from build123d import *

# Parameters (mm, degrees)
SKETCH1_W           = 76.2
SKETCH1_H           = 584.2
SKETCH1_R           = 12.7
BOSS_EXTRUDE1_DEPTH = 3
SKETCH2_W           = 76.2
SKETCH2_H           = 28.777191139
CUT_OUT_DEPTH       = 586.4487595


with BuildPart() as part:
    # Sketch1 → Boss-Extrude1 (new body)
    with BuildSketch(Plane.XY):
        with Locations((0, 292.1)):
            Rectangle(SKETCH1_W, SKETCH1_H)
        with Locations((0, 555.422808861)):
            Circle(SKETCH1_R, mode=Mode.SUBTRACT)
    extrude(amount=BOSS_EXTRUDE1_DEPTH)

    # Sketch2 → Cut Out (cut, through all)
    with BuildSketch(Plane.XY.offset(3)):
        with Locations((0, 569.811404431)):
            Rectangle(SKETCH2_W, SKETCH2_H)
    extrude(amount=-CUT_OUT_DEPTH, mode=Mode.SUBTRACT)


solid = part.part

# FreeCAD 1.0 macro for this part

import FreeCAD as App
import Part
import Sketcher
from FreeCAD import Vector
Q = App.Units.Quantity

doc = App.newDocument("Part")
body = doc.addObject("PartDesign::Body", "Body")

# Sketch on XY plane
sketch1 = doc.addObject("Sketcher::SketchObject", "Sketch")
body.addObject(sketch1)
sketch1.AttachmentSupport = (doc.XY_Plane, [""])
sketch1.MapMode = "FlatFace"
sketch1.addGeometry(Part.LineSegment(Vector(-38, 584, 0), Vector(-38, 0, 0)), False)
sketch1.addGeometry(Part.LineSegment(Vector(-38, 0, 0), Vector(38, 0, 0)), False)
sketch1.addGeometry(Part.LineSegment(Vector(38, 0, 0), Vector(38, 584, 0)), False)
sketch1.addGeometry(Part.LineSegment(Vector(38, 584, 0), Vector(-38, 584, 0)), False)
sketch1.addGeometry(Part.Circle(Vector(0, 555, 0), Vector(0, 0, 1), 13), False)
sketch1.addConstraint(Sketcher.Constraint("Coincident", 0, 2, 1, 1))
sketch1.addConstraint(Sketcher.Constraint("Coincident", 1, 2, 2, 1))
sketch1.addConstraint(Sketcher.Constraint("Coincident", 2, 2, 3, 1))
sketch1.addConstraint(Sketcher.Constraint("Coincident", 3, 2, 0, 1))
sketch1.addConstraint(Sketcher.Constraint("Vertical", 0))
sketch1.addConstraint(Sketcher.Constraint("Horizontal", 1))
sketch1.addConstraint(Sketcher.Constraint("Vertical", 2))
sketch1.addConstraint(Sketcher.Constraint("Horizontal", 3))
sketch1.addConstraint(Sketcher.Constraint("Symmetric", 0, 2, 1, 2, -1, 1))
sketch1.addConstraint(Sketcher.Constraint("PointOnObject", 4, 3, -2))
sketch1.addConstraint(Sketcher.Constraint("Diameter", 4, Q("1 in")))
sketch1.addConstraint(Sketcher.Constraint("DistanceX", 1, 1, 1, 2, Q("3 in")))
sketch1.addConstraint(Sketcher.Constraint("DistanceY", 0, 2, 0, 1, Q("23 in")))
sketch1.addConstraint(Sketcher.Constraint("DistanceY", -1, 1, 4, 3, Q("555.422809 mm")))
pad1 = doc.addObject("PartDesign::Pad", "Pad")
body.addObject(pad1)
pad1.Profile = sketch1
pad1.Length = 3

# Sketch on XY plane
sketch2 = doc.addObject("Sketcher::SketchObject", "Sketch001")
body.addObject(sketch2)
sketch2.AttachmentSupport = (doc.XY_Plane, [""])
sketch2.MapMode = "FlatFace"
sketch2.AttachmentOffset = App.Placement(Vector(0, 0, 3), App.Rotation())
sketch2.addGeometry(Part.LineSegment(Vector(-38, 584, 0), Vector(-38, 555, 0)), False)
sketch2.addGeometry(Part.LineSegment(Vector(-38, 555, 0), Vector(38, 555, 0)), False)
sketch2.addGeometry(Part.LineSegment(Vector(38, 555, 0), Vector(38, 584, 0)), False)
sketch2.addGeometry(Part.LineSegment(Vector(38, 584, 0), Vector(-38, 584, 0)), False)
sketch2.addConstraint(Sketcher.Constraint("Coincident", 0, 2, 1, 1))
sketch2.addConstraint(Sketcher.Constraint("Coincident", 1, 2, 2, 1))
sketch2.addConstraint(Sketcher.Constraint("Coincident", 2, 2, 3, 1))
sketch2.addConstraint(Sketcher.Constraint("Coincident", 3, 2, 0, 1))
sketch2.addConstraint(Sketcher.Constraint("Vertical", 0))
sketch2.addConstraint(Sketcher.Constraint("Horizontal", 1))
sketch2.addConstraint(Sketcher.Constraint("Vertical", 2))
sketch2.addConstraint(Sketcher.Constraint("Horizontal", 3))
sketch2.addConstraint(Sketcher.Constraint("DistanceX", 1, 1, 1, 2, Q("3 in")))
sketch2.addConstraint(Sketcher.Constraint("DistanceY", -1, 1, 2, 2, Q("23 in")))
sketch2.addConstraint(Sketcher.Constraint("DistanceX", 0, 2, -1, 1, Q("1.5 in")))
sketch2.addConstraint(Sketcher.Constraint("DistanceY", 0, 2, 0, 1, Q("28.777191 mm")))
pocket1 = doc.addObject("PartDesign::Pocket", "Pocket")
body.addObject(pocket1)
pocket1.Profile = sketch2
pocket1.Type = "ThroughAll"

doc.recompute()
